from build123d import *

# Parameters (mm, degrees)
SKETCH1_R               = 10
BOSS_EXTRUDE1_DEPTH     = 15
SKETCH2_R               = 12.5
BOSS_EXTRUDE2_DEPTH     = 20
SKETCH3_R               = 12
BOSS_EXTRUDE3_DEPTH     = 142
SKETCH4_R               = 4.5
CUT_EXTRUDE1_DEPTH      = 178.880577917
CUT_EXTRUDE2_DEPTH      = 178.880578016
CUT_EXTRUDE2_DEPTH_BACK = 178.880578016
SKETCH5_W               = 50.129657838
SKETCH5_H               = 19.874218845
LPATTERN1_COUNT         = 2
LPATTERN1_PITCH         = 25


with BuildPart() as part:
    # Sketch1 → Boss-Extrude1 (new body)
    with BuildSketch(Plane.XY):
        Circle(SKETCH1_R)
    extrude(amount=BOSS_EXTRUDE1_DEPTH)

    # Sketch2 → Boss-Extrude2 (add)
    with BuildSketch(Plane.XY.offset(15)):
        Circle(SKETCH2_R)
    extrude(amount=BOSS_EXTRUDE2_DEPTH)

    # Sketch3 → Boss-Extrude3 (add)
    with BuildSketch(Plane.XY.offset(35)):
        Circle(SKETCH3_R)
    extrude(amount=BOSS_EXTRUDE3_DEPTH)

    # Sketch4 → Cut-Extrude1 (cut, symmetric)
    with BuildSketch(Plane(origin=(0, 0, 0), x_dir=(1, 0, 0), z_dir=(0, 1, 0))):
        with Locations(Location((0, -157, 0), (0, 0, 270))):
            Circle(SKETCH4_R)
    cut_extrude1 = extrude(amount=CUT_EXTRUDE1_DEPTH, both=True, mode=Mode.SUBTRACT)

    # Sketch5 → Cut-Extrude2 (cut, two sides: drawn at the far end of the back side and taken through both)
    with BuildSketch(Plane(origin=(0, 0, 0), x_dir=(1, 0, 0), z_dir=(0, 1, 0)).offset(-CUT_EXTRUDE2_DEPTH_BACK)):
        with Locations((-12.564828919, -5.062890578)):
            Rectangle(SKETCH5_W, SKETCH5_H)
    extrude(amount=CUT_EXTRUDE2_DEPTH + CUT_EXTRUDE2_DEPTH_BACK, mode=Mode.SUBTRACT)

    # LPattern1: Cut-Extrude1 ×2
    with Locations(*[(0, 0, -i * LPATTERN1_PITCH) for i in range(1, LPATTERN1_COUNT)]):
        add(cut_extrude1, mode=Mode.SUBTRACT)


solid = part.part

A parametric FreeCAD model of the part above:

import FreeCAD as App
import Part
import Sketcher
from FreeCAD import Vector


def add_polygon(sketch, points):
    """Adds a closed chain of lines whose ends are joined by coincident constraints."""
    first, n = sketch.GeometryCount, len(points)
    for a, b in zip(points, points[1:] + points[:1]):
        sketch.addGeometry(Part.LineSegment(App.Vector(*a, 0), App.Vector(*b, 0)), False)
    for i in range(n):
        sketch.addConstraint(Sketcher.Constraint("Coincident", first + i, 2, first + (i + 1) % n, 1))

doc = App.newDocument("Part")
params = doc.addObject("Spreadsheet::Sheet", "Params")
for row, (alias, value) in enumerate([
    ("sketch1_diameter", "20 mm"),
    ("pad1_length", "15 mm"),
    ("sketch2_diameter", "25 mm"),
    ("pad2_length", "20 mm"),
    ("sketch3_diameter", "24 mm"),
    ("pad3_length", "142 mm"),
    ("sketch4_diameter", "9 mm"),
    ("pocket1_length", "357.761156 mm"),
    ("linearpattern_pitch", "25 mm"),
], start=1):
    params.set(f"A{row}", alias)
    params.set(f"B{row}", "=" + value)
    params.setAlias(f"B{row}", alias)

body = doc.addObject("PartDesign::Body", "Body")

sketch1 = doc.addObject("Sketcher::SketchObject", "Sketch")
body.addObject(sketch1)
sketch1.AttachmentSupport = (doc.XY_Plane, [""])
sketch1.MapMode = "FlatFace"
sketch1.addGeometry(Part.Circle(Vector(0, 0, 0), Vector(0, 0, 1), 10), False)
sketch1.addConstraint([
    Sketcher.Constraint("Coincident", 0, 3, -1, 1),
    Sketcher.Constraint("Diameter", 0, 20.0),
])
sketch1.setExpression("Constraints[1]", "Params.sketch1_diameter")
pad1 = doc.addObject("PartDesign::Pad", "Pad")
body.addObject(pad1)
pad1.Profile = sketch1
pad1.setExpression("Length", "Params.pad1_length")

sketch2 = doc.addObject("Sketcher::SketchObject", "Sketch001")
body.addObject(sketch2)
sketch2.AttachmentSupport = (doc.XY_Plane, [""])
sketch2.MapMode = "FlatFace"
sketch2.AttachmentOffset = App.Placement(Vector(0, 0, 15), App.Rotation())
sketch2.addGeometry(Part.Circle(Vector(0, 0, 0), Vector(0, 0, 1), 12), False)
sketch2.addConstraint([
    Sketcher.Constraint("Coincident", 0, 3, -1, 1),
    Sketcher.Constraint("Diameter", 0, 25.0),
])
sketch2.setExpression("Constraints[1]", "Params.sketch2_diameter")
pad2 = doc.addObject("PartDesign::Pad", "Pad001")
body.addObject(pad2)
pad2.Profile = sketch2
pad2.setExpression("Length", "Params.pad2_length")

sketch3 = doc.addObject("Sketcher::SketchObject", "Sketch002")
body.addObject(sketch3)
sketch3.AttachmentSupport = (doc.XY_Plane, [""])
sketch3.MapMode = "FlatFace"
sketch3.AttachmentOffset = App.Placement(Vector(0, 0, 35), App.Rotation())
sketch3.addGeometry(Part.Circle(Vector(0, 0, 0), Vector(0, 0, 1), 12), False)
sketch3.addConstraint([
    Sketcher.Constraint("Coincident", 0, 3, -1, 1),
    Sketcher.Constraint("Diameter", 0, 24.0),
])
sketch3.setExpression("Constraints[1]", "Params.sketch3_diameter")
pad3 = doc.addObject("PartDesign::Pad", "Pad002")
body.addObject(pad3)
pad3.Profile = sketch3
pad3.setExpression("Length", "Params.pad3_length")

sketch4 = doc.addObject("Sketcher::SketchObject", "Sketch003")
body.addObject(sketch4)
sketch4.AttachmentSupport = (doc.XZ_Plane, [""])
sketch4.MapMode = "FlatFace"
sketch4.addGeometry(Part.Circle(Vector(0, 157, 0), Vector(0, 0, 1), 4.5), False)
sketch4.addConstraint([
    Sketcher.Constraint("PointOnObject", 0, 3, -2),
    Sketcher.Constraint("Diameter", 0, 9.0),
    Sketcher.Constraint("DistanceY", -1, 1, 0, 3, 157.0),
])
sketch4.setExpression("Constraints[1]", "Params.sketch4_diameter")
pocket1 = doc.addObject("PartDesign::Pocket", "Pocket")
body.addObject(pocket1)
pocket1.Profile = sketch4
pocket1.setExpression("Length", "Params.pocket1_length")
pocket1.Midplane = True

sketch5 = doc.addObject("Sketcher::SketchObject", "Sketch004")
body.addObject(sketch5)
sketch5.AttachmentSupport = (doc.XZ_Plane, [""])
sketch5.MapMode = "FlatFace"
add_polygon(sketch5, [(-38, -5), (-38, 15), (12, 15), (12, -5)])
sketch5.addConstraint([
    Sketcher.Constraint("Vertical", 0),
    Sketcher.Constraint("Horizontal", 1),
    Sketcher.Constraint("Vertical", 2),
    Sketcher.Constraint("Horizontal", 3),
    Sketcher.Constraint("DistanceY", -1, 1, 0, 2, 15.0),
    Sketcher.Constraint("DistanceX", -1, 1, 1, 2, 12.5),
    Sketcher.Constraint("DistanceY", 0, 1, 0, 2, 19.874219),
    Sketcher.Constraint("DistanceX", 1, 1, 1, 2, 50.129658),
])
pocket2 = doc.addObject("PartDesign::Pocket", "Pocket001")
body.addObject(pocket2)
pocket2.Profile = sketch5
pocket2.Type = "ThroughAll"
pocket2.Midplane = True
doc.recompute()

linearpattern = doc.addObject("PartDesign::LinearPattern", "LinearPattern")
body.addObject(linearpattern)
linearpattern.Originals = [pocket1]
linearpattern.Direction = (doc.Z_Axis, [""])
linearpattern.Mode = "offset"
linearpattern.setExpression("Offset", "Params.linearpattern_pitch")
linearpattern.Occurrences = 2
linearpattern.Reversed = True
body.Tip = linearpattern

doc.recompute()
